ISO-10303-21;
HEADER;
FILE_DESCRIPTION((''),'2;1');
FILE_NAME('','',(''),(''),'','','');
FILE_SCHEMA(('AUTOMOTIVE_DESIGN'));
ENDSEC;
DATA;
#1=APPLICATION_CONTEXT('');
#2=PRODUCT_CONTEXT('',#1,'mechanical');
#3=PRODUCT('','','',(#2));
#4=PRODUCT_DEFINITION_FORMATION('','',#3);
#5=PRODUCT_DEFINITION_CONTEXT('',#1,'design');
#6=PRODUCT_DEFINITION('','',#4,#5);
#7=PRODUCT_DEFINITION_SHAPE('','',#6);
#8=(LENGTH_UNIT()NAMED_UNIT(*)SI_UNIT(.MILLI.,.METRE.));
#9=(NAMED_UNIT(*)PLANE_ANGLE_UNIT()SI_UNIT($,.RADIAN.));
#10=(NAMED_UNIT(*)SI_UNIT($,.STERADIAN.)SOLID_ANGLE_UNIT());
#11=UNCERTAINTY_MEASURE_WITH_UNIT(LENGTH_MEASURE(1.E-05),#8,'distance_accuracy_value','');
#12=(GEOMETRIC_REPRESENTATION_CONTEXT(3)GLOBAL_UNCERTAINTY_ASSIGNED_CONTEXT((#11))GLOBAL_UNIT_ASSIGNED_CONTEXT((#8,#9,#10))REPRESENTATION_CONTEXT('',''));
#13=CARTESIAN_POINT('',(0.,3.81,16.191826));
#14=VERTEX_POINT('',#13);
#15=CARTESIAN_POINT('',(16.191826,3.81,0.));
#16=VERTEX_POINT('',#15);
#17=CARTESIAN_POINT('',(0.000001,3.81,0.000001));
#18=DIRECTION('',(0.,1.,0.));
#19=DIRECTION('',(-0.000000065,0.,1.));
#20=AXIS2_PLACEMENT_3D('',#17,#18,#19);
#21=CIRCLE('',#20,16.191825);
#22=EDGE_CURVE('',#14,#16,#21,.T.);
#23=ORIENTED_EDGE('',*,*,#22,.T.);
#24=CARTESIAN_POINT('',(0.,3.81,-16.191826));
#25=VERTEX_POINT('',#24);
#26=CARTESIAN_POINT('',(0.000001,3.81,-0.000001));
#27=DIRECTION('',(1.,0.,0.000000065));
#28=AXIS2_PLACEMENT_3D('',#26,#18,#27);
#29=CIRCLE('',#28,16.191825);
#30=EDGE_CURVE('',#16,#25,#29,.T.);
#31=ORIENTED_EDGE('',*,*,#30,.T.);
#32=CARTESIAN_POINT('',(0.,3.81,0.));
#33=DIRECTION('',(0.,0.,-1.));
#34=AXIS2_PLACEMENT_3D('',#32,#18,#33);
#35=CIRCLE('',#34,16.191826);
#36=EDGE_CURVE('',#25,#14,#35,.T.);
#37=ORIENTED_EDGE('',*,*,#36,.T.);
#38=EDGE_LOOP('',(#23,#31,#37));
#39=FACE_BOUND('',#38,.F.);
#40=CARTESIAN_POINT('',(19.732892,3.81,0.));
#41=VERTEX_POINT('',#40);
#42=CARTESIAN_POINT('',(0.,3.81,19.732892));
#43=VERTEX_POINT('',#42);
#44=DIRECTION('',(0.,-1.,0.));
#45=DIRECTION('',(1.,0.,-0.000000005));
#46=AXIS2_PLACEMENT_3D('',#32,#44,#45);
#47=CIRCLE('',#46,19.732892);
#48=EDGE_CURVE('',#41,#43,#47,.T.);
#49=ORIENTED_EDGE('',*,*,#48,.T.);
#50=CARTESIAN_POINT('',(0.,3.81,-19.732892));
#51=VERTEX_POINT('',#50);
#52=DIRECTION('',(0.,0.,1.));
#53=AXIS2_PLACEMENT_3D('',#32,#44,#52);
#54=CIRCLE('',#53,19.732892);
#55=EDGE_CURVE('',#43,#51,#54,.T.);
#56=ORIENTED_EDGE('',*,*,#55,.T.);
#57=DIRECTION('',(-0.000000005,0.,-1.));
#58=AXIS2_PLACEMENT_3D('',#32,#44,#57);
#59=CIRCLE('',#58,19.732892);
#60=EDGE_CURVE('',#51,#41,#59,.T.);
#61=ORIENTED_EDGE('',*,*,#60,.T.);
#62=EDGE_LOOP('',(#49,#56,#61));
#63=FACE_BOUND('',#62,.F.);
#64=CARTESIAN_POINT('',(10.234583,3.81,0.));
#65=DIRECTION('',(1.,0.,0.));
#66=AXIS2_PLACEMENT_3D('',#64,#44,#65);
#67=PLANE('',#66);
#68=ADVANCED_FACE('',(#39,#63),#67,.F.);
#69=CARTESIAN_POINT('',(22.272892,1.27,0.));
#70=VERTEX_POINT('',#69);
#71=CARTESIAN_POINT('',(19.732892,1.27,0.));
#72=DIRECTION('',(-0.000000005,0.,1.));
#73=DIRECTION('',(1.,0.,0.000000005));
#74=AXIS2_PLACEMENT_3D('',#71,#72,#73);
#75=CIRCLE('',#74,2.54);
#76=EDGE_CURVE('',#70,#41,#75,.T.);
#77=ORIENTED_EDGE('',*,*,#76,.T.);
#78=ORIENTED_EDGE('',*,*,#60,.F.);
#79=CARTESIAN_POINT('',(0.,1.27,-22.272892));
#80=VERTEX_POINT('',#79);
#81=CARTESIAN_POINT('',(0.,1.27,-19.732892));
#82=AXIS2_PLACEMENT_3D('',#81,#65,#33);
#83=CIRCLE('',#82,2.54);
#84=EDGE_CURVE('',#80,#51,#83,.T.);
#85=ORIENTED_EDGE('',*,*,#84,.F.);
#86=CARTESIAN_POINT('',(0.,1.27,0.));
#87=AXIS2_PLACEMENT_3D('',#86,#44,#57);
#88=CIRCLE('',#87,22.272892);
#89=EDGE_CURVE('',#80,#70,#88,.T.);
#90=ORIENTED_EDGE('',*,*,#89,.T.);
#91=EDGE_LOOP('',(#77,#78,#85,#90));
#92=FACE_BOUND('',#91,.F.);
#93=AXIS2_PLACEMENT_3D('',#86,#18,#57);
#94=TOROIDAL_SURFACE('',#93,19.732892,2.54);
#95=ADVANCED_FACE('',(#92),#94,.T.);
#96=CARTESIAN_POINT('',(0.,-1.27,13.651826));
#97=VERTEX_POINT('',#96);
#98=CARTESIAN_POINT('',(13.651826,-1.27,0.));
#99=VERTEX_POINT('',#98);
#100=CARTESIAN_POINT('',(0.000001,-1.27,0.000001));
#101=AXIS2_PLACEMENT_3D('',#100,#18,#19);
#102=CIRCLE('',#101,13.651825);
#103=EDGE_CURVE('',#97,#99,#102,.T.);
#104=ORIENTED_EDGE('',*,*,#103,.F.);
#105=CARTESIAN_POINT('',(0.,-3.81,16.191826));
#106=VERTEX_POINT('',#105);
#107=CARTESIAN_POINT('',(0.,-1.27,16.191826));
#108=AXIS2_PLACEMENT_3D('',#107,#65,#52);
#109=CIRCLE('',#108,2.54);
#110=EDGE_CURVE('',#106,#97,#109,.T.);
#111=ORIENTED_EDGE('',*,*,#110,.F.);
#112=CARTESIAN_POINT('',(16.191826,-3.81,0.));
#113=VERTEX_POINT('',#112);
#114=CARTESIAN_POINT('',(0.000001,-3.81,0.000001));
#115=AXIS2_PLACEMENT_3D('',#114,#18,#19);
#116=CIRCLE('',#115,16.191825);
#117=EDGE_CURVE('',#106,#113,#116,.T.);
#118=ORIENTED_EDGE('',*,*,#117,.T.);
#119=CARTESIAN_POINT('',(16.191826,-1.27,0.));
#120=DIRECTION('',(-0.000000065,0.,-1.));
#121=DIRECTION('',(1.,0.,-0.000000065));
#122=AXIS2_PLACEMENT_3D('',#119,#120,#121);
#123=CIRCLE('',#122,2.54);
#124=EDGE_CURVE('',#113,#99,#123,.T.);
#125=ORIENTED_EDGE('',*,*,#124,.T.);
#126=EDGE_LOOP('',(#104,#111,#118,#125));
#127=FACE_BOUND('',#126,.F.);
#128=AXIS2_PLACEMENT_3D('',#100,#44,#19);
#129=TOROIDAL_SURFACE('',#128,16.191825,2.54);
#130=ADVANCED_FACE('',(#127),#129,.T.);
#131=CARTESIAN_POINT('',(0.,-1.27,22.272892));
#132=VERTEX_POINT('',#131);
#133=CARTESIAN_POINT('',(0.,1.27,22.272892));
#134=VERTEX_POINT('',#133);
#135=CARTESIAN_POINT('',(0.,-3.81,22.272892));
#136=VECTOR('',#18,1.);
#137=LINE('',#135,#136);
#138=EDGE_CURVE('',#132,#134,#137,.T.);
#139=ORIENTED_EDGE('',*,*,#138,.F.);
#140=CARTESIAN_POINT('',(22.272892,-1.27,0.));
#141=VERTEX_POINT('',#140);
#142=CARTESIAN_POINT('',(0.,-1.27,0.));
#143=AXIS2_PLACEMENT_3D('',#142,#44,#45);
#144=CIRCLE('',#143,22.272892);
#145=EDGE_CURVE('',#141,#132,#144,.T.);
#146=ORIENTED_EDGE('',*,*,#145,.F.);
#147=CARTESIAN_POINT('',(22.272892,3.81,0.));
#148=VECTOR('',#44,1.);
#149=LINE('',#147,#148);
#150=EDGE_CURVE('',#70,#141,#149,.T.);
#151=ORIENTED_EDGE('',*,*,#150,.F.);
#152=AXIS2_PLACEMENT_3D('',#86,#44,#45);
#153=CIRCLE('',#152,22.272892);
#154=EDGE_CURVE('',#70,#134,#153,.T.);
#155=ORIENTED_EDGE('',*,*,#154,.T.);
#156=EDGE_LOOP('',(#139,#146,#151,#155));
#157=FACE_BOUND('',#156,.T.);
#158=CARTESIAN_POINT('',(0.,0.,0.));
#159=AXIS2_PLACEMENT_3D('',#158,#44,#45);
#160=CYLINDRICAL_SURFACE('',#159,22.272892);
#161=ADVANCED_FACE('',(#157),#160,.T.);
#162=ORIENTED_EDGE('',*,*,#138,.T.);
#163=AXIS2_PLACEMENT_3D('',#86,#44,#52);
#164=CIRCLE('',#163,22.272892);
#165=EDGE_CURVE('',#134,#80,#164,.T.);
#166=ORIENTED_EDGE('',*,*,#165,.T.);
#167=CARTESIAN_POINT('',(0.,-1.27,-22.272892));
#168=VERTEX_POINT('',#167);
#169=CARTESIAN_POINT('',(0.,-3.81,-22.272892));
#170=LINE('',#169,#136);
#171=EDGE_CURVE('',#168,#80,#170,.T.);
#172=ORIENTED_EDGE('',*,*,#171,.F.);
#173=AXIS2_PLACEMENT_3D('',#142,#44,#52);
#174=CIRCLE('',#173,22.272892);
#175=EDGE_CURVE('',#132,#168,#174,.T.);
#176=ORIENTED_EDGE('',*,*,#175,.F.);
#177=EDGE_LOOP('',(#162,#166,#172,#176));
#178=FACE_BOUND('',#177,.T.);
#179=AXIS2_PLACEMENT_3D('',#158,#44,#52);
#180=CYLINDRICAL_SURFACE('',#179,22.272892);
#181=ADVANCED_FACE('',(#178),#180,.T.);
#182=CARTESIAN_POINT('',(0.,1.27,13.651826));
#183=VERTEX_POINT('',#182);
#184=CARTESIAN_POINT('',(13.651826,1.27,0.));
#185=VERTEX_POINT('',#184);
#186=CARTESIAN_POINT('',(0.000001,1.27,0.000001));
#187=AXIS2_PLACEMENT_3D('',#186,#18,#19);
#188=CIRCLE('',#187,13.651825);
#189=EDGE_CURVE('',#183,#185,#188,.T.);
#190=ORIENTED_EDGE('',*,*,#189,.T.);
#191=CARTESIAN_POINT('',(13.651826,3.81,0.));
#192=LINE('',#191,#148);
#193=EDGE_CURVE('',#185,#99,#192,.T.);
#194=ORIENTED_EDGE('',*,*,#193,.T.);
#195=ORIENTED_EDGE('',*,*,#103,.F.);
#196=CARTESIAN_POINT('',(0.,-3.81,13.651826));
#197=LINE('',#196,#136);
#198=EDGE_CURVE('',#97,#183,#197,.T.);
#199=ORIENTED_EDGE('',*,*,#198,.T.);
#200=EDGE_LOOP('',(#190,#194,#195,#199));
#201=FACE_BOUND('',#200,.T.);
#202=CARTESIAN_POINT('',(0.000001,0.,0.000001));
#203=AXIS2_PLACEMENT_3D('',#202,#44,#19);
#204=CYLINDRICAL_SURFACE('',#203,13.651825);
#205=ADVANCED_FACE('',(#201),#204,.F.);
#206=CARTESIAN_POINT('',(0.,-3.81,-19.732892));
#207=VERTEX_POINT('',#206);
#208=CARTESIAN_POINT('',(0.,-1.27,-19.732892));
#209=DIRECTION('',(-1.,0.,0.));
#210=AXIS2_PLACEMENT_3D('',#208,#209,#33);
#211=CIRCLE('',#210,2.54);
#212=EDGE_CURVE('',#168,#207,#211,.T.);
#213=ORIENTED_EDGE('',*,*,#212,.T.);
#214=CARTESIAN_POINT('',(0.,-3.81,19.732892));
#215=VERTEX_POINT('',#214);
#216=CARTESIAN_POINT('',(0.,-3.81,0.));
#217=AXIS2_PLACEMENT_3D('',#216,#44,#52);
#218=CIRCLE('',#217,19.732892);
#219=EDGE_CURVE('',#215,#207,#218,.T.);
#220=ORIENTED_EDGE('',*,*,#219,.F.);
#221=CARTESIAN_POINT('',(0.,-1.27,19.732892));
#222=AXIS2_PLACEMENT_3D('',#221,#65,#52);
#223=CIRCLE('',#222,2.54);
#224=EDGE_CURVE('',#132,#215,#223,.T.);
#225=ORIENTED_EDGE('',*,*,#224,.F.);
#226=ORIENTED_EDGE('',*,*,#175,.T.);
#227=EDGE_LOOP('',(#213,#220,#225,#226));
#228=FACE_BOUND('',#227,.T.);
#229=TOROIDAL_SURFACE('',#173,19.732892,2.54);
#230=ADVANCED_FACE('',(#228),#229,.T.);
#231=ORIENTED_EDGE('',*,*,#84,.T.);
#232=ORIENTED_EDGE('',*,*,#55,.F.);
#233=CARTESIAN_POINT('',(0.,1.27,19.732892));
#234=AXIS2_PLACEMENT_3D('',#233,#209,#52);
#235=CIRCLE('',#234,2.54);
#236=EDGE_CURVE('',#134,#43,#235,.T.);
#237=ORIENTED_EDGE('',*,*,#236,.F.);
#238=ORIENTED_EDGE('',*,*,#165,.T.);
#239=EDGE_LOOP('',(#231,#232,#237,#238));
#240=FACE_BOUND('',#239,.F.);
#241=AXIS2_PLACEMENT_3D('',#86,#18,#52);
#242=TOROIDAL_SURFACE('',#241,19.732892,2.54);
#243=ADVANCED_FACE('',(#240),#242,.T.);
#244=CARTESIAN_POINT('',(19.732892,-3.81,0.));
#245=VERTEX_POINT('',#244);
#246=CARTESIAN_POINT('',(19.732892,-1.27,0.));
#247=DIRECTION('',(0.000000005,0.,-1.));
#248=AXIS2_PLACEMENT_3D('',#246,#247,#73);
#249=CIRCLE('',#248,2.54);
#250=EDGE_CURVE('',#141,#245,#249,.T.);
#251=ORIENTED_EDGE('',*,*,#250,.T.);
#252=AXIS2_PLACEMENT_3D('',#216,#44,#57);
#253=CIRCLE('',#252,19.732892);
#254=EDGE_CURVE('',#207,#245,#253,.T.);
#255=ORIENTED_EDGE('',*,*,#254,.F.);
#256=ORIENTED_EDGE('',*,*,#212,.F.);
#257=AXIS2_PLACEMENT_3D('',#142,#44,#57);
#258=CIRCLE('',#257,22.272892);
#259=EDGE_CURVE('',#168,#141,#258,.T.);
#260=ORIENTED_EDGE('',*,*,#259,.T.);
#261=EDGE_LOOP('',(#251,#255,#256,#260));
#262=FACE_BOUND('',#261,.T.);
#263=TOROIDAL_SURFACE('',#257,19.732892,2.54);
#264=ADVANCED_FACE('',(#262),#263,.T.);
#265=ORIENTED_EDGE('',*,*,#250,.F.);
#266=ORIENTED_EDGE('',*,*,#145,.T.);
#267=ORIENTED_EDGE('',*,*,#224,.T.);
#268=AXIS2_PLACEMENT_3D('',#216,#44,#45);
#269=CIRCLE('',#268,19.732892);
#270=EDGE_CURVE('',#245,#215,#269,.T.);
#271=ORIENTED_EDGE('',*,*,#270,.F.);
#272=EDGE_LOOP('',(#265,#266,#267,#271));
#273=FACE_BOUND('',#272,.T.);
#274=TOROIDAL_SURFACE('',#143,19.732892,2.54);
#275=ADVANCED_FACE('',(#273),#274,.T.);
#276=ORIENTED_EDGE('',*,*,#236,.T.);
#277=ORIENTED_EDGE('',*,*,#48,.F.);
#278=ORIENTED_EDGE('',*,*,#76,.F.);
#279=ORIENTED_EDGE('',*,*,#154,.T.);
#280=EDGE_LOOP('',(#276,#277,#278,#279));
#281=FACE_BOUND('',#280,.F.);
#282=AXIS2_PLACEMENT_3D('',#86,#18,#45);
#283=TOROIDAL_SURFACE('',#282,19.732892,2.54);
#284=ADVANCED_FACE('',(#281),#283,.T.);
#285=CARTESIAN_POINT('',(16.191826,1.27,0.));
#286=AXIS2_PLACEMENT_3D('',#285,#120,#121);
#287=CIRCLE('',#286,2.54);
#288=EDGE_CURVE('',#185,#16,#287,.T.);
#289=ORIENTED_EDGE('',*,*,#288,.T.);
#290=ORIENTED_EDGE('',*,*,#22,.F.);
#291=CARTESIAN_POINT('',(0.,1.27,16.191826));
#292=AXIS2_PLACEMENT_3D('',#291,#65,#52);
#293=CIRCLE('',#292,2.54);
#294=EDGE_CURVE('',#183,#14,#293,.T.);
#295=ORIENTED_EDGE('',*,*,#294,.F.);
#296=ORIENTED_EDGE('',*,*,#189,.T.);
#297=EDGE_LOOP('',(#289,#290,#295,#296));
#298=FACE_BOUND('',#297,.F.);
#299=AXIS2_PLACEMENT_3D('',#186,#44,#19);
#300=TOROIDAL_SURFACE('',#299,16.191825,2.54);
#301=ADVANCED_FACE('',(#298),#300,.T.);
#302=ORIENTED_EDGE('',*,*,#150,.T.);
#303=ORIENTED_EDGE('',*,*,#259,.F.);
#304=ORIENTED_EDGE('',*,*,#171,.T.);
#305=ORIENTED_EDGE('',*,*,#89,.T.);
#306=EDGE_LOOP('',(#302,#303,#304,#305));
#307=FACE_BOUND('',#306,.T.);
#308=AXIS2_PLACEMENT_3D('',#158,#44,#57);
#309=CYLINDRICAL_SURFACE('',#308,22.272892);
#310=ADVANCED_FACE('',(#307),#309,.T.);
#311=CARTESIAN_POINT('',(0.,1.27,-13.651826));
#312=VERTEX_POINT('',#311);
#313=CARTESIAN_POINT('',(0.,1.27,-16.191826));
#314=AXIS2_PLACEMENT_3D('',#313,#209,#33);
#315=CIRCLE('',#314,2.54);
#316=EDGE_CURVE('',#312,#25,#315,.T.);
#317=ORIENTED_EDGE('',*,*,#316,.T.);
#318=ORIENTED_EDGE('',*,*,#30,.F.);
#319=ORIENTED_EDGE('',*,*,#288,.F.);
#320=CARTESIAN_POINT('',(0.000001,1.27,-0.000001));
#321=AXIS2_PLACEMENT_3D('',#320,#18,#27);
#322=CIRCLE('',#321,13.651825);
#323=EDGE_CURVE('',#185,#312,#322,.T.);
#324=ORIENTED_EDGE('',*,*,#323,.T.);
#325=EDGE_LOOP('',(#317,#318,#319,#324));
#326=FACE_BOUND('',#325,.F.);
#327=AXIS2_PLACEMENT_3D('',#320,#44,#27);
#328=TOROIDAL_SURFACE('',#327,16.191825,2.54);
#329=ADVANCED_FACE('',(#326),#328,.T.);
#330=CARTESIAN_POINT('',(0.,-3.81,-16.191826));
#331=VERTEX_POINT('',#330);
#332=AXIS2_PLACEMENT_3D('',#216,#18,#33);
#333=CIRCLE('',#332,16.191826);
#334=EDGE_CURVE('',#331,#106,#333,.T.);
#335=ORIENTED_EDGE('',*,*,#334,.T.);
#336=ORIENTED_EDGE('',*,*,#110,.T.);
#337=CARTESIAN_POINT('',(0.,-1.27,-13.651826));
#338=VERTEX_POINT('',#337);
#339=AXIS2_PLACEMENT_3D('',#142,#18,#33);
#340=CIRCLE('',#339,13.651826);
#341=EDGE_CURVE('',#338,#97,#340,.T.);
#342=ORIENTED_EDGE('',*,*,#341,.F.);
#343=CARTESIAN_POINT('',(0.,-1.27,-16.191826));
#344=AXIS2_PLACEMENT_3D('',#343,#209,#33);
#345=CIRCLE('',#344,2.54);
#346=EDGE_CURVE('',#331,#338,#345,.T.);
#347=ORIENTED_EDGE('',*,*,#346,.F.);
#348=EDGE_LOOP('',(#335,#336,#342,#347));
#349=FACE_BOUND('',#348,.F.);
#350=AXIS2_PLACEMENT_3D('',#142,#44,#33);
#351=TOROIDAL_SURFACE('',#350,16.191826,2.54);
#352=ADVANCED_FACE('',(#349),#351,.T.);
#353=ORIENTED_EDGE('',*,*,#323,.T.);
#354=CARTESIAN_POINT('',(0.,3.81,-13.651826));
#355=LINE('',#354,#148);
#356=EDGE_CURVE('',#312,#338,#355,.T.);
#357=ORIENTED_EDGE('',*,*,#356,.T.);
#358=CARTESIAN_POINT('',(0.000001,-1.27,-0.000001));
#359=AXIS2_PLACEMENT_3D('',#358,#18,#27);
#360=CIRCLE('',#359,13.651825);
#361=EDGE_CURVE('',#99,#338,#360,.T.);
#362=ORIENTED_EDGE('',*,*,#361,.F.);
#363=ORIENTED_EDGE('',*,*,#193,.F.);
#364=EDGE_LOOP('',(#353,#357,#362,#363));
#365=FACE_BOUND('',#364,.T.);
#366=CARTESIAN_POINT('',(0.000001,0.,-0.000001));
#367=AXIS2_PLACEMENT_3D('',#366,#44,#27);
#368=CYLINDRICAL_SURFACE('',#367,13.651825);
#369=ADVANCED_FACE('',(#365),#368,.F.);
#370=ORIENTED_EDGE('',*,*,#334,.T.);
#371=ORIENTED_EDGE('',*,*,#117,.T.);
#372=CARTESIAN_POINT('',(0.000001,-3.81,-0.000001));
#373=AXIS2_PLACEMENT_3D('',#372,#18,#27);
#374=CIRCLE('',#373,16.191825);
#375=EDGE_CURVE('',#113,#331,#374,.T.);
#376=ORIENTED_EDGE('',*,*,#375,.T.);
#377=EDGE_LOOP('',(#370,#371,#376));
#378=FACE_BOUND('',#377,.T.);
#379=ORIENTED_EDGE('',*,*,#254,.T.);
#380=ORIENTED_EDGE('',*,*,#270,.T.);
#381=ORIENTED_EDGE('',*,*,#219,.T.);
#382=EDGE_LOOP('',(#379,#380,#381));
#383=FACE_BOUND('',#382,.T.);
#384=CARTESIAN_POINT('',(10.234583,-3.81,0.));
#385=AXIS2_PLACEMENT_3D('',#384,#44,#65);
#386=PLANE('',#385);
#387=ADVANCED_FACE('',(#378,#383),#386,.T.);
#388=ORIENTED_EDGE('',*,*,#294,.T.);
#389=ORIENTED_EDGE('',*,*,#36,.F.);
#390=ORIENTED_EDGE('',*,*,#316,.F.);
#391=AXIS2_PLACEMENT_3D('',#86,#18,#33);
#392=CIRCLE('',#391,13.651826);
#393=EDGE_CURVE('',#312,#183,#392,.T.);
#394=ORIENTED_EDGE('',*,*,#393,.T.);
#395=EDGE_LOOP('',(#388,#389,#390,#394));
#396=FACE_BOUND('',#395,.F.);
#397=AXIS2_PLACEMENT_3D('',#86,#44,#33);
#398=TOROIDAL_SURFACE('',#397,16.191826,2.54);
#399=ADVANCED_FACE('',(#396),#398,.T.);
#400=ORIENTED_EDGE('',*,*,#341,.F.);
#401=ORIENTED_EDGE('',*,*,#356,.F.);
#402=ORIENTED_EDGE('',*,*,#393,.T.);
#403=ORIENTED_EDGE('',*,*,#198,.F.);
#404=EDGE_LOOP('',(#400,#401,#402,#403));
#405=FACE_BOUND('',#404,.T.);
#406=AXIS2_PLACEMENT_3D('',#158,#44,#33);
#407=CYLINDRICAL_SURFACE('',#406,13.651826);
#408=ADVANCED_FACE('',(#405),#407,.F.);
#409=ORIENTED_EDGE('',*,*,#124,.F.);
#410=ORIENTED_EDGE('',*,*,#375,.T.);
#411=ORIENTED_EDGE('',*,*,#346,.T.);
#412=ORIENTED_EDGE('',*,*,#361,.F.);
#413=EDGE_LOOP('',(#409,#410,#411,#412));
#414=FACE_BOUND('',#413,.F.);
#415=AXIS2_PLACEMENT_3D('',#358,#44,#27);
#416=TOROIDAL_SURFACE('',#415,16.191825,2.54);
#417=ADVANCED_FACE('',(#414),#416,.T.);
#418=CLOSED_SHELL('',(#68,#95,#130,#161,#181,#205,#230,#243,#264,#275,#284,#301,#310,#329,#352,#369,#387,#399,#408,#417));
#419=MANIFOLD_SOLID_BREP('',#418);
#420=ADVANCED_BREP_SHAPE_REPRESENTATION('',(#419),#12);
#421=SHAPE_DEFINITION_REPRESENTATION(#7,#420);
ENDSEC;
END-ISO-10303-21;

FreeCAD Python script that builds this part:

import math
import FreeCAD as App
import Part
import Sketcher
Q = App.Units.Quantity


def edges_at(feature, points):
    """Names of the edges that pass closest to the given points."""
    edges = feature.Shape.Edges
    near = lambda p: min(range(len(edges)), key=lambda i: edges[i].distToShape(Part.Vertex(*p))[0])
    return sorted({f"Edge{near(p) + 1}" for p in points})

doc = App.newDocument("Part")
body = doc.addObject("PartDesign::Body", "Body")

# Sketch on XZ plane
sketch1 = body.newObject("Sketcher::SketchObject", "Sketch")
sketch1.AttachmentSupport = (doc.getObject("XZ_Plane"), [""])
sketch1.MapMode = "FlatFace"
sketch1.addGeometry(Part.ArcOfCircle(Part.Circle(App.Vector(0, 0, 0), App.Vector(0, 0, 1), 22), math.radians(-90), math.radians(0)), False)
sketch1.addGeometry(Part.ArcOfCircle(Part.Circle(App.Vector(0, 0, 0), App.Vector(0, 0, 1), 22), math.radians(0), math.radians(90)), False)
sketch1.addGeometry(Part.ArcOfCircle(Part.Circle(App.Vector(0, 0, 0), App.Vector(0, 0, 1), 22), math.radians(90), math.radians(270)), False)
sketch1.addGeometry(Part.ArcOfCircle(Part.Circle(App.Vector(0, 0, 0), App.Vector(0, 0, 1), 14), math.radians(0), math.radians(90)), False)
sketch1.addGeometry(Part.ArcOfCircle(Part.Circle(App.Vector(0, 0, 0), App.Vector(0, 0, 1), 14), math.radians(-90), math.radians(0)), False)
sketch1.addGeometry(Part.ArcOfCircle(Part.Circle(App.Vector(0, 0, 0), App.Vector(0, 0, 1), 14), math.radians(90), math.radians(270)), False)
sketch1.addConstraint(Sketcher.Constraint("Tangent", 0, 2, 1, 1))
sketch1.addConstraint(Sketcher.Constraint("Tangent", 1, 2, 2, 1))
sketch1.addConstraint(Sketcher.Constraint("Tangent", 2, 2, 0, 1))
sketch1.addConstraint(Sketcher.Constraint("Tangent", 3, 1, 4, 2))
sketch1.addConstraint(Sketcher.Constraint("Tangent", 4, 1, 5, 2))
sketch1.addConstraint(Sketcher.Constraint("Tangent", 5, 1, 3, 2))
sketch1.addConstraint(Sketcher.Constraint("Coincident", 0, 3, -1, 1))
sketch1.addConstraint(Sketcher.Constraint("Coincident", 3, 3, -1, 1))
sketch1.addConstraint(Sketcher.Constraint("PointOnObject", 0, 2, -1))
sketch1.addConstraint(Sketcher.Constraint("PointOnObject", 1, 2, -2))
sketch1.addConstraint(Sketcher.Constraint("PointOnObject", 2, 2, -2))
sketch1.addConstraint(Sketcher.Constraint("PointOnObject", 3, 1, -1))
sketch1.addConstraint(Sketcher.Constraint("PointOnObject", 4, 1, -2))
sketch1.addConstraint(Sketcher.Constraint("PointOnObject", 5, 1, -2))
sketch1.addConstraint(Sketcher.Constraint("Radius", 0, 22.272892))
sketch1.addConstraint(Sketcher.Constraint("Radius", 3, 13.651825))
pad1 = body.newObject("PartDesign::Pad", "Pad")
pad1.Profile = sketch1
pad1.Length = Q("0.3 in")
pad1.Midplane = True
doc.recompute()

fillet = body.newObject("PartDesign::Fillet", "Fillet")
fillet.Base = (pad1, edges_at(pad1, [
    (-13.652, -3.81, 0),
    (-22.273, -3.81, 0),
    (-22.273, 3.81, 0),
    (-13.652, 3.81, 0),
]))
fillet.Radius = Q("0.1 in")

doc.recompute()
